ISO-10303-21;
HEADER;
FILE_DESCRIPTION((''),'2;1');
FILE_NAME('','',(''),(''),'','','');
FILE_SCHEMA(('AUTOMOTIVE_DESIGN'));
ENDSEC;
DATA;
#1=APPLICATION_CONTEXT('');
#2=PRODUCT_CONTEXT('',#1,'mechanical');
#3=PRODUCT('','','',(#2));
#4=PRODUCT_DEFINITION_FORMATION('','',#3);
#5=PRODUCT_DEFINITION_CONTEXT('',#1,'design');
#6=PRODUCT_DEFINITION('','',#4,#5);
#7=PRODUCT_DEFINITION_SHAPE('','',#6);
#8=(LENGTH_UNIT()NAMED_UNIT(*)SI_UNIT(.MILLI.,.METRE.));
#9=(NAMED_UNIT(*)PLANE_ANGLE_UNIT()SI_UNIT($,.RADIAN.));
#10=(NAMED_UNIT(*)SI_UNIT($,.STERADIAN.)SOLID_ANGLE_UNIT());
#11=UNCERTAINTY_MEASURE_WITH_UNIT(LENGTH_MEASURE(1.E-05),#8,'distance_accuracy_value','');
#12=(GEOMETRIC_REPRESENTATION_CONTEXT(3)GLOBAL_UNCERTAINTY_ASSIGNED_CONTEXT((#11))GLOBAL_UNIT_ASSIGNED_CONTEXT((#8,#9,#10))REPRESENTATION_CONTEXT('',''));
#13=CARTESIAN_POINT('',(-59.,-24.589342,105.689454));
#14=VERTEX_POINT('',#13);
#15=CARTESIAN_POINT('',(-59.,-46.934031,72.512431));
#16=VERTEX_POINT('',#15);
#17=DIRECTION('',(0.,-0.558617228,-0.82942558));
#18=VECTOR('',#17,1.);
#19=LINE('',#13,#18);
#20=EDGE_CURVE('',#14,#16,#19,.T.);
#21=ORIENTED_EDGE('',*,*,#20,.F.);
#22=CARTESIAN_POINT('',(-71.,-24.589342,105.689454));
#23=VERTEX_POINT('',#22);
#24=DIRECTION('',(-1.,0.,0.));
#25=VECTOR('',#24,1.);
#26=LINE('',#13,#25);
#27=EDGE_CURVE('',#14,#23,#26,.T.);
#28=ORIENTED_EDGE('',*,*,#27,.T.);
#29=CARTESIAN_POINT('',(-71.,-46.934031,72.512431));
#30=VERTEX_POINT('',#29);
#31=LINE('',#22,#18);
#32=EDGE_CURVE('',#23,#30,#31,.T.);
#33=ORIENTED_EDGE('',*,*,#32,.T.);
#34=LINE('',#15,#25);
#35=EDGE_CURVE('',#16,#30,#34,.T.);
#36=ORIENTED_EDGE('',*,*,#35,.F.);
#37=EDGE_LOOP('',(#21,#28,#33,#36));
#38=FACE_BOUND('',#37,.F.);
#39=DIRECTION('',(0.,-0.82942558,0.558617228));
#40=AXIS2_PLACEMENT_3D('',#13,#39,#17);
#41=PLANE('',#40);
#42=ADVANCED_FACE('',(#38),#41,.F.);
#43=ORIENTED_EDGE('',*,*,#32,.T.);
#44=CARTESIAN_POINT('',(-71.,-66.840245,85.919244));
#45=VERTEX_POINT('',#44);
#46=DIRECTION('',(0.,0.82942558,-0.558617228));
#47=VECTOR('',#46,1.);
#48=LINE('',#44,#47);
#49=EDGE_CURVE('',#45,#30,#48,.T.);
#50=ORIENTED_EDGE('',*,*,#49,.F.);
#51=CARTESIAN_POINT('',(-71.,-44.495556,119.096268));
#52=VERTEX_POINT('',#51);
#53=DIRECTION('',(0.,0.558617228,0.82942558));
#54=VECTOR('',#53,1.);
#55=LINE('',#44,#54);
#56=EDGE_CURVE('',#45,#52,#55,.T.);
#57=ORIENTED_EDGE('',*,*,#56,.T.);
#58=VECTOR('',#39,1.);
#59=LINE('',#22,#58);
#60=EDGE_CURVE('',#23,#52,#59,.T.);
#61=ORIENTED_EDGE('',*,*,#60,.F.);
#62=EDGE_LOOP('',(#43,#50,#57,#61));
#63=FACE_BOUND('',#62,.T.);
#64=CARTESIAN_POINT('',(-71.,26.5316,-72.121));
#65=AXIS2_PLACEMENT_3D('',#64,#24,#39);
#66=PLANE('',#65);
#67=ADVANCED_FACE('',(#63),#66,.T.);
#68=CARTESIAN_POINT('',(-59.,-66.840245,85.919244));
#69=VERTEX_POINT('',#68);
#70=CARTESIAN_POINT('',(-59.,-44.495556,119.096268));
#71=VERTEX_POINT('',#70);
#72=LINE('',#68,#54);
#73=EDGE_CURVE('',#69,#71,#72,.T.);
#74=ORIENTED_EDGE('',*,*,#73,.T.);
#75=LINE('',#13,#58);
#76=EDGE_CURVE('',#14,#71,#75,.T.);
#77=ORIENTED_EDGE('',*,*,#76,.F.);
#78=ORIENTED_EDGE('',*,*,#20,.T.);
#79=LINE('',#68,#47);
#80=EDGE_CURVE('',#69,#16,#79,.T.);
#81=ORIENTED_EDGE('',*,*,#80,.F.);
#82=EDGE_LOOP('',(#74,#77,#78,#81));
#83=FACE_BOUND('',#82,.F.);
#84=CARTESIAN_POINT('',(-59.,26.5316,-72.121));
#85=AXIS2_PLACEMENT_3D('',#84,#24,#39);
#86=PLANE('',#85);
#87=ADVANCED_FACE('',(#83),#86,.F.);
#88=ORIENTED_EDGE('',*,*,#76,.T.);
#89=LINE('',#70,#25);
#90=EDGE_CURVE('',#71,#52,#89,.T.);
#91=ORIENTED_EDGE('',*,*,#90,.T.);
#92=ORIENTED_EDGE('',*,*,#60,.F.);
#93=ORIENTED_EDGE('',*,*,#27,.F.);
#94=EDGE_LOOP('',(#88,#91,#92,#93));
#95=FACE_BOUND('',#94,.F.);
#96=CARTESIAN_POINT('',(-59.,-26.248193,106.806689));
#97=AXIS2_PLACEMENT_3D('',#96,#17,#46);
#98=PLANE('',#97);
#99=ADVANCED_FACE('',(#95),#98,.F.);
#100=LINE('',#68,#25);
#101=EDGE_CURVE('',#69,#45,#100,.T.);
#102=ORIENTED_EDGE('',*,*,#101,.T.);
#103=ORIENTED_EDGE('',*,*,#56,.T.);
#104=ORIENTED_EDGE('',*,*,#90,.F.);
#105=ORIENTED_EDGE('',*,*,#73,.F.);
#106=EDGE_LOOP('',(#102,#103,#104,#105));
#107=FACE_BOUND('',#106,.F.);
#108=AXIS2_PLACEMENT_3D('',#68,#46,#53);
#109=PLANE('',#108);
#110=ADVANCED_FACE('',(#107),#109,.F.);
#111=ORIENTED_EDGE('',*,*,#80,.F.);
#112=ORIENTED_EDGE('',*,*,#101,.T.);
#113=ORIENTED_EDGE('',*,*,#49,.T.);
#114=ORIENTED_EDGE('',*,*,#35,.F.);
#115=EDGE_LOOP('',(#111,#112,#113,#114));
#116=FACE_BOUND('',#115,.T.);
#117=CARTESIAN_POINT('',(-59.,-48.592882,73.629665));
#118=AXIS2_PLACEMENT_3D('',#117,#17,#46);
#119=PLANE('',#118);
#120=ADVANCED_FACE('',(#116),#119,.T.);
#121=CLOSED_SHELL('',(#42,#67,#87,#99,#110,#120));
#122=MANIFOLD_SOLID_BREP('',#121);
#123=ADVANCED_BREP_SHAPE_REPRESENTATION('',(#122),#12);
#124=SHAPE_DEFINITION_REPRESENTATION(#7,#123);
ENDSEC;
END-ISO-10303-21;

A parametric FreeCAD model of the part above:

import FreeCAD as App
import Part
import Sketcher
Q = App.Units.Quantity


def add_polygon(sketch, points):
    """Adds a closed chain of lines whose ends are joined by coincident constraints."""
    first, n = sketch.GeometryCount, len(points)
    for a, b in zip(points, points[1:] + points[:1]):
        sketch.addGeometry(Part.LineSegment(App.Vector(*a, 0), App.Vector(*b, 0)), False)
    for i in range(n):
        sketch.addConstraint(Sketcher.Constraint("Coincident", first + i, 2, first + (i + 1) % n, 1))

doc = App.newDocument("Part")
body = doc.addObject("PartDesign::Body", "Body")

# Sketch on YZ plane
sketch1 = doc.addObject("Sketcher::SketchObject", "Sketch")
body.addObject(sketch1)
sketch1.AttachmentSupport = (doc.YZ_Plane, [""])
sketch1.MapMode = "FlatFace"
sketch1.AttachmentOffset = App.Placement(App.Vector(0, 0, -59), App.Rotation())
add_polygon(sketch1, [(-47, 73), (-67, 86), (-44, 119), (-25, 106)])  # lines 0-3
sketch1.addConstraint(Sketcher.Constraint("Perpendicular", 0, 1))
sketch1.addConstraint(Sketcher.Constraint("Perpendicular", 1, 2))
sketch1.addConstraint(Sketcher.Constraint("Perpendicular", 2, 3))
sketch1.addConstraint(Sketcher.Constraint("Distance", 0, 24.0))
sketch1.addConstraint(Sketcher.Constraint("Distance", 1, 40.0))
sketch1.addConstraint(Sketcher.Constraint("Angle", 0, Q("146.0398 deg")))
sketch1.addConstraint(Sketcher.Constraint("DistanceX", 3, 2, -1, 1, 46.934))
sketch1.addConstraint(Sketcher.Constraint("DistanceY", -1, 1, 0, 2, 85.9192))
pad1 = doc.addObject("PartDesign::Pad", "Pad")
body.addObject(pad1)
pad1.Profile = sketch1
pad1.Length = 12
pad1.Reversed = True

doc.recompute()
